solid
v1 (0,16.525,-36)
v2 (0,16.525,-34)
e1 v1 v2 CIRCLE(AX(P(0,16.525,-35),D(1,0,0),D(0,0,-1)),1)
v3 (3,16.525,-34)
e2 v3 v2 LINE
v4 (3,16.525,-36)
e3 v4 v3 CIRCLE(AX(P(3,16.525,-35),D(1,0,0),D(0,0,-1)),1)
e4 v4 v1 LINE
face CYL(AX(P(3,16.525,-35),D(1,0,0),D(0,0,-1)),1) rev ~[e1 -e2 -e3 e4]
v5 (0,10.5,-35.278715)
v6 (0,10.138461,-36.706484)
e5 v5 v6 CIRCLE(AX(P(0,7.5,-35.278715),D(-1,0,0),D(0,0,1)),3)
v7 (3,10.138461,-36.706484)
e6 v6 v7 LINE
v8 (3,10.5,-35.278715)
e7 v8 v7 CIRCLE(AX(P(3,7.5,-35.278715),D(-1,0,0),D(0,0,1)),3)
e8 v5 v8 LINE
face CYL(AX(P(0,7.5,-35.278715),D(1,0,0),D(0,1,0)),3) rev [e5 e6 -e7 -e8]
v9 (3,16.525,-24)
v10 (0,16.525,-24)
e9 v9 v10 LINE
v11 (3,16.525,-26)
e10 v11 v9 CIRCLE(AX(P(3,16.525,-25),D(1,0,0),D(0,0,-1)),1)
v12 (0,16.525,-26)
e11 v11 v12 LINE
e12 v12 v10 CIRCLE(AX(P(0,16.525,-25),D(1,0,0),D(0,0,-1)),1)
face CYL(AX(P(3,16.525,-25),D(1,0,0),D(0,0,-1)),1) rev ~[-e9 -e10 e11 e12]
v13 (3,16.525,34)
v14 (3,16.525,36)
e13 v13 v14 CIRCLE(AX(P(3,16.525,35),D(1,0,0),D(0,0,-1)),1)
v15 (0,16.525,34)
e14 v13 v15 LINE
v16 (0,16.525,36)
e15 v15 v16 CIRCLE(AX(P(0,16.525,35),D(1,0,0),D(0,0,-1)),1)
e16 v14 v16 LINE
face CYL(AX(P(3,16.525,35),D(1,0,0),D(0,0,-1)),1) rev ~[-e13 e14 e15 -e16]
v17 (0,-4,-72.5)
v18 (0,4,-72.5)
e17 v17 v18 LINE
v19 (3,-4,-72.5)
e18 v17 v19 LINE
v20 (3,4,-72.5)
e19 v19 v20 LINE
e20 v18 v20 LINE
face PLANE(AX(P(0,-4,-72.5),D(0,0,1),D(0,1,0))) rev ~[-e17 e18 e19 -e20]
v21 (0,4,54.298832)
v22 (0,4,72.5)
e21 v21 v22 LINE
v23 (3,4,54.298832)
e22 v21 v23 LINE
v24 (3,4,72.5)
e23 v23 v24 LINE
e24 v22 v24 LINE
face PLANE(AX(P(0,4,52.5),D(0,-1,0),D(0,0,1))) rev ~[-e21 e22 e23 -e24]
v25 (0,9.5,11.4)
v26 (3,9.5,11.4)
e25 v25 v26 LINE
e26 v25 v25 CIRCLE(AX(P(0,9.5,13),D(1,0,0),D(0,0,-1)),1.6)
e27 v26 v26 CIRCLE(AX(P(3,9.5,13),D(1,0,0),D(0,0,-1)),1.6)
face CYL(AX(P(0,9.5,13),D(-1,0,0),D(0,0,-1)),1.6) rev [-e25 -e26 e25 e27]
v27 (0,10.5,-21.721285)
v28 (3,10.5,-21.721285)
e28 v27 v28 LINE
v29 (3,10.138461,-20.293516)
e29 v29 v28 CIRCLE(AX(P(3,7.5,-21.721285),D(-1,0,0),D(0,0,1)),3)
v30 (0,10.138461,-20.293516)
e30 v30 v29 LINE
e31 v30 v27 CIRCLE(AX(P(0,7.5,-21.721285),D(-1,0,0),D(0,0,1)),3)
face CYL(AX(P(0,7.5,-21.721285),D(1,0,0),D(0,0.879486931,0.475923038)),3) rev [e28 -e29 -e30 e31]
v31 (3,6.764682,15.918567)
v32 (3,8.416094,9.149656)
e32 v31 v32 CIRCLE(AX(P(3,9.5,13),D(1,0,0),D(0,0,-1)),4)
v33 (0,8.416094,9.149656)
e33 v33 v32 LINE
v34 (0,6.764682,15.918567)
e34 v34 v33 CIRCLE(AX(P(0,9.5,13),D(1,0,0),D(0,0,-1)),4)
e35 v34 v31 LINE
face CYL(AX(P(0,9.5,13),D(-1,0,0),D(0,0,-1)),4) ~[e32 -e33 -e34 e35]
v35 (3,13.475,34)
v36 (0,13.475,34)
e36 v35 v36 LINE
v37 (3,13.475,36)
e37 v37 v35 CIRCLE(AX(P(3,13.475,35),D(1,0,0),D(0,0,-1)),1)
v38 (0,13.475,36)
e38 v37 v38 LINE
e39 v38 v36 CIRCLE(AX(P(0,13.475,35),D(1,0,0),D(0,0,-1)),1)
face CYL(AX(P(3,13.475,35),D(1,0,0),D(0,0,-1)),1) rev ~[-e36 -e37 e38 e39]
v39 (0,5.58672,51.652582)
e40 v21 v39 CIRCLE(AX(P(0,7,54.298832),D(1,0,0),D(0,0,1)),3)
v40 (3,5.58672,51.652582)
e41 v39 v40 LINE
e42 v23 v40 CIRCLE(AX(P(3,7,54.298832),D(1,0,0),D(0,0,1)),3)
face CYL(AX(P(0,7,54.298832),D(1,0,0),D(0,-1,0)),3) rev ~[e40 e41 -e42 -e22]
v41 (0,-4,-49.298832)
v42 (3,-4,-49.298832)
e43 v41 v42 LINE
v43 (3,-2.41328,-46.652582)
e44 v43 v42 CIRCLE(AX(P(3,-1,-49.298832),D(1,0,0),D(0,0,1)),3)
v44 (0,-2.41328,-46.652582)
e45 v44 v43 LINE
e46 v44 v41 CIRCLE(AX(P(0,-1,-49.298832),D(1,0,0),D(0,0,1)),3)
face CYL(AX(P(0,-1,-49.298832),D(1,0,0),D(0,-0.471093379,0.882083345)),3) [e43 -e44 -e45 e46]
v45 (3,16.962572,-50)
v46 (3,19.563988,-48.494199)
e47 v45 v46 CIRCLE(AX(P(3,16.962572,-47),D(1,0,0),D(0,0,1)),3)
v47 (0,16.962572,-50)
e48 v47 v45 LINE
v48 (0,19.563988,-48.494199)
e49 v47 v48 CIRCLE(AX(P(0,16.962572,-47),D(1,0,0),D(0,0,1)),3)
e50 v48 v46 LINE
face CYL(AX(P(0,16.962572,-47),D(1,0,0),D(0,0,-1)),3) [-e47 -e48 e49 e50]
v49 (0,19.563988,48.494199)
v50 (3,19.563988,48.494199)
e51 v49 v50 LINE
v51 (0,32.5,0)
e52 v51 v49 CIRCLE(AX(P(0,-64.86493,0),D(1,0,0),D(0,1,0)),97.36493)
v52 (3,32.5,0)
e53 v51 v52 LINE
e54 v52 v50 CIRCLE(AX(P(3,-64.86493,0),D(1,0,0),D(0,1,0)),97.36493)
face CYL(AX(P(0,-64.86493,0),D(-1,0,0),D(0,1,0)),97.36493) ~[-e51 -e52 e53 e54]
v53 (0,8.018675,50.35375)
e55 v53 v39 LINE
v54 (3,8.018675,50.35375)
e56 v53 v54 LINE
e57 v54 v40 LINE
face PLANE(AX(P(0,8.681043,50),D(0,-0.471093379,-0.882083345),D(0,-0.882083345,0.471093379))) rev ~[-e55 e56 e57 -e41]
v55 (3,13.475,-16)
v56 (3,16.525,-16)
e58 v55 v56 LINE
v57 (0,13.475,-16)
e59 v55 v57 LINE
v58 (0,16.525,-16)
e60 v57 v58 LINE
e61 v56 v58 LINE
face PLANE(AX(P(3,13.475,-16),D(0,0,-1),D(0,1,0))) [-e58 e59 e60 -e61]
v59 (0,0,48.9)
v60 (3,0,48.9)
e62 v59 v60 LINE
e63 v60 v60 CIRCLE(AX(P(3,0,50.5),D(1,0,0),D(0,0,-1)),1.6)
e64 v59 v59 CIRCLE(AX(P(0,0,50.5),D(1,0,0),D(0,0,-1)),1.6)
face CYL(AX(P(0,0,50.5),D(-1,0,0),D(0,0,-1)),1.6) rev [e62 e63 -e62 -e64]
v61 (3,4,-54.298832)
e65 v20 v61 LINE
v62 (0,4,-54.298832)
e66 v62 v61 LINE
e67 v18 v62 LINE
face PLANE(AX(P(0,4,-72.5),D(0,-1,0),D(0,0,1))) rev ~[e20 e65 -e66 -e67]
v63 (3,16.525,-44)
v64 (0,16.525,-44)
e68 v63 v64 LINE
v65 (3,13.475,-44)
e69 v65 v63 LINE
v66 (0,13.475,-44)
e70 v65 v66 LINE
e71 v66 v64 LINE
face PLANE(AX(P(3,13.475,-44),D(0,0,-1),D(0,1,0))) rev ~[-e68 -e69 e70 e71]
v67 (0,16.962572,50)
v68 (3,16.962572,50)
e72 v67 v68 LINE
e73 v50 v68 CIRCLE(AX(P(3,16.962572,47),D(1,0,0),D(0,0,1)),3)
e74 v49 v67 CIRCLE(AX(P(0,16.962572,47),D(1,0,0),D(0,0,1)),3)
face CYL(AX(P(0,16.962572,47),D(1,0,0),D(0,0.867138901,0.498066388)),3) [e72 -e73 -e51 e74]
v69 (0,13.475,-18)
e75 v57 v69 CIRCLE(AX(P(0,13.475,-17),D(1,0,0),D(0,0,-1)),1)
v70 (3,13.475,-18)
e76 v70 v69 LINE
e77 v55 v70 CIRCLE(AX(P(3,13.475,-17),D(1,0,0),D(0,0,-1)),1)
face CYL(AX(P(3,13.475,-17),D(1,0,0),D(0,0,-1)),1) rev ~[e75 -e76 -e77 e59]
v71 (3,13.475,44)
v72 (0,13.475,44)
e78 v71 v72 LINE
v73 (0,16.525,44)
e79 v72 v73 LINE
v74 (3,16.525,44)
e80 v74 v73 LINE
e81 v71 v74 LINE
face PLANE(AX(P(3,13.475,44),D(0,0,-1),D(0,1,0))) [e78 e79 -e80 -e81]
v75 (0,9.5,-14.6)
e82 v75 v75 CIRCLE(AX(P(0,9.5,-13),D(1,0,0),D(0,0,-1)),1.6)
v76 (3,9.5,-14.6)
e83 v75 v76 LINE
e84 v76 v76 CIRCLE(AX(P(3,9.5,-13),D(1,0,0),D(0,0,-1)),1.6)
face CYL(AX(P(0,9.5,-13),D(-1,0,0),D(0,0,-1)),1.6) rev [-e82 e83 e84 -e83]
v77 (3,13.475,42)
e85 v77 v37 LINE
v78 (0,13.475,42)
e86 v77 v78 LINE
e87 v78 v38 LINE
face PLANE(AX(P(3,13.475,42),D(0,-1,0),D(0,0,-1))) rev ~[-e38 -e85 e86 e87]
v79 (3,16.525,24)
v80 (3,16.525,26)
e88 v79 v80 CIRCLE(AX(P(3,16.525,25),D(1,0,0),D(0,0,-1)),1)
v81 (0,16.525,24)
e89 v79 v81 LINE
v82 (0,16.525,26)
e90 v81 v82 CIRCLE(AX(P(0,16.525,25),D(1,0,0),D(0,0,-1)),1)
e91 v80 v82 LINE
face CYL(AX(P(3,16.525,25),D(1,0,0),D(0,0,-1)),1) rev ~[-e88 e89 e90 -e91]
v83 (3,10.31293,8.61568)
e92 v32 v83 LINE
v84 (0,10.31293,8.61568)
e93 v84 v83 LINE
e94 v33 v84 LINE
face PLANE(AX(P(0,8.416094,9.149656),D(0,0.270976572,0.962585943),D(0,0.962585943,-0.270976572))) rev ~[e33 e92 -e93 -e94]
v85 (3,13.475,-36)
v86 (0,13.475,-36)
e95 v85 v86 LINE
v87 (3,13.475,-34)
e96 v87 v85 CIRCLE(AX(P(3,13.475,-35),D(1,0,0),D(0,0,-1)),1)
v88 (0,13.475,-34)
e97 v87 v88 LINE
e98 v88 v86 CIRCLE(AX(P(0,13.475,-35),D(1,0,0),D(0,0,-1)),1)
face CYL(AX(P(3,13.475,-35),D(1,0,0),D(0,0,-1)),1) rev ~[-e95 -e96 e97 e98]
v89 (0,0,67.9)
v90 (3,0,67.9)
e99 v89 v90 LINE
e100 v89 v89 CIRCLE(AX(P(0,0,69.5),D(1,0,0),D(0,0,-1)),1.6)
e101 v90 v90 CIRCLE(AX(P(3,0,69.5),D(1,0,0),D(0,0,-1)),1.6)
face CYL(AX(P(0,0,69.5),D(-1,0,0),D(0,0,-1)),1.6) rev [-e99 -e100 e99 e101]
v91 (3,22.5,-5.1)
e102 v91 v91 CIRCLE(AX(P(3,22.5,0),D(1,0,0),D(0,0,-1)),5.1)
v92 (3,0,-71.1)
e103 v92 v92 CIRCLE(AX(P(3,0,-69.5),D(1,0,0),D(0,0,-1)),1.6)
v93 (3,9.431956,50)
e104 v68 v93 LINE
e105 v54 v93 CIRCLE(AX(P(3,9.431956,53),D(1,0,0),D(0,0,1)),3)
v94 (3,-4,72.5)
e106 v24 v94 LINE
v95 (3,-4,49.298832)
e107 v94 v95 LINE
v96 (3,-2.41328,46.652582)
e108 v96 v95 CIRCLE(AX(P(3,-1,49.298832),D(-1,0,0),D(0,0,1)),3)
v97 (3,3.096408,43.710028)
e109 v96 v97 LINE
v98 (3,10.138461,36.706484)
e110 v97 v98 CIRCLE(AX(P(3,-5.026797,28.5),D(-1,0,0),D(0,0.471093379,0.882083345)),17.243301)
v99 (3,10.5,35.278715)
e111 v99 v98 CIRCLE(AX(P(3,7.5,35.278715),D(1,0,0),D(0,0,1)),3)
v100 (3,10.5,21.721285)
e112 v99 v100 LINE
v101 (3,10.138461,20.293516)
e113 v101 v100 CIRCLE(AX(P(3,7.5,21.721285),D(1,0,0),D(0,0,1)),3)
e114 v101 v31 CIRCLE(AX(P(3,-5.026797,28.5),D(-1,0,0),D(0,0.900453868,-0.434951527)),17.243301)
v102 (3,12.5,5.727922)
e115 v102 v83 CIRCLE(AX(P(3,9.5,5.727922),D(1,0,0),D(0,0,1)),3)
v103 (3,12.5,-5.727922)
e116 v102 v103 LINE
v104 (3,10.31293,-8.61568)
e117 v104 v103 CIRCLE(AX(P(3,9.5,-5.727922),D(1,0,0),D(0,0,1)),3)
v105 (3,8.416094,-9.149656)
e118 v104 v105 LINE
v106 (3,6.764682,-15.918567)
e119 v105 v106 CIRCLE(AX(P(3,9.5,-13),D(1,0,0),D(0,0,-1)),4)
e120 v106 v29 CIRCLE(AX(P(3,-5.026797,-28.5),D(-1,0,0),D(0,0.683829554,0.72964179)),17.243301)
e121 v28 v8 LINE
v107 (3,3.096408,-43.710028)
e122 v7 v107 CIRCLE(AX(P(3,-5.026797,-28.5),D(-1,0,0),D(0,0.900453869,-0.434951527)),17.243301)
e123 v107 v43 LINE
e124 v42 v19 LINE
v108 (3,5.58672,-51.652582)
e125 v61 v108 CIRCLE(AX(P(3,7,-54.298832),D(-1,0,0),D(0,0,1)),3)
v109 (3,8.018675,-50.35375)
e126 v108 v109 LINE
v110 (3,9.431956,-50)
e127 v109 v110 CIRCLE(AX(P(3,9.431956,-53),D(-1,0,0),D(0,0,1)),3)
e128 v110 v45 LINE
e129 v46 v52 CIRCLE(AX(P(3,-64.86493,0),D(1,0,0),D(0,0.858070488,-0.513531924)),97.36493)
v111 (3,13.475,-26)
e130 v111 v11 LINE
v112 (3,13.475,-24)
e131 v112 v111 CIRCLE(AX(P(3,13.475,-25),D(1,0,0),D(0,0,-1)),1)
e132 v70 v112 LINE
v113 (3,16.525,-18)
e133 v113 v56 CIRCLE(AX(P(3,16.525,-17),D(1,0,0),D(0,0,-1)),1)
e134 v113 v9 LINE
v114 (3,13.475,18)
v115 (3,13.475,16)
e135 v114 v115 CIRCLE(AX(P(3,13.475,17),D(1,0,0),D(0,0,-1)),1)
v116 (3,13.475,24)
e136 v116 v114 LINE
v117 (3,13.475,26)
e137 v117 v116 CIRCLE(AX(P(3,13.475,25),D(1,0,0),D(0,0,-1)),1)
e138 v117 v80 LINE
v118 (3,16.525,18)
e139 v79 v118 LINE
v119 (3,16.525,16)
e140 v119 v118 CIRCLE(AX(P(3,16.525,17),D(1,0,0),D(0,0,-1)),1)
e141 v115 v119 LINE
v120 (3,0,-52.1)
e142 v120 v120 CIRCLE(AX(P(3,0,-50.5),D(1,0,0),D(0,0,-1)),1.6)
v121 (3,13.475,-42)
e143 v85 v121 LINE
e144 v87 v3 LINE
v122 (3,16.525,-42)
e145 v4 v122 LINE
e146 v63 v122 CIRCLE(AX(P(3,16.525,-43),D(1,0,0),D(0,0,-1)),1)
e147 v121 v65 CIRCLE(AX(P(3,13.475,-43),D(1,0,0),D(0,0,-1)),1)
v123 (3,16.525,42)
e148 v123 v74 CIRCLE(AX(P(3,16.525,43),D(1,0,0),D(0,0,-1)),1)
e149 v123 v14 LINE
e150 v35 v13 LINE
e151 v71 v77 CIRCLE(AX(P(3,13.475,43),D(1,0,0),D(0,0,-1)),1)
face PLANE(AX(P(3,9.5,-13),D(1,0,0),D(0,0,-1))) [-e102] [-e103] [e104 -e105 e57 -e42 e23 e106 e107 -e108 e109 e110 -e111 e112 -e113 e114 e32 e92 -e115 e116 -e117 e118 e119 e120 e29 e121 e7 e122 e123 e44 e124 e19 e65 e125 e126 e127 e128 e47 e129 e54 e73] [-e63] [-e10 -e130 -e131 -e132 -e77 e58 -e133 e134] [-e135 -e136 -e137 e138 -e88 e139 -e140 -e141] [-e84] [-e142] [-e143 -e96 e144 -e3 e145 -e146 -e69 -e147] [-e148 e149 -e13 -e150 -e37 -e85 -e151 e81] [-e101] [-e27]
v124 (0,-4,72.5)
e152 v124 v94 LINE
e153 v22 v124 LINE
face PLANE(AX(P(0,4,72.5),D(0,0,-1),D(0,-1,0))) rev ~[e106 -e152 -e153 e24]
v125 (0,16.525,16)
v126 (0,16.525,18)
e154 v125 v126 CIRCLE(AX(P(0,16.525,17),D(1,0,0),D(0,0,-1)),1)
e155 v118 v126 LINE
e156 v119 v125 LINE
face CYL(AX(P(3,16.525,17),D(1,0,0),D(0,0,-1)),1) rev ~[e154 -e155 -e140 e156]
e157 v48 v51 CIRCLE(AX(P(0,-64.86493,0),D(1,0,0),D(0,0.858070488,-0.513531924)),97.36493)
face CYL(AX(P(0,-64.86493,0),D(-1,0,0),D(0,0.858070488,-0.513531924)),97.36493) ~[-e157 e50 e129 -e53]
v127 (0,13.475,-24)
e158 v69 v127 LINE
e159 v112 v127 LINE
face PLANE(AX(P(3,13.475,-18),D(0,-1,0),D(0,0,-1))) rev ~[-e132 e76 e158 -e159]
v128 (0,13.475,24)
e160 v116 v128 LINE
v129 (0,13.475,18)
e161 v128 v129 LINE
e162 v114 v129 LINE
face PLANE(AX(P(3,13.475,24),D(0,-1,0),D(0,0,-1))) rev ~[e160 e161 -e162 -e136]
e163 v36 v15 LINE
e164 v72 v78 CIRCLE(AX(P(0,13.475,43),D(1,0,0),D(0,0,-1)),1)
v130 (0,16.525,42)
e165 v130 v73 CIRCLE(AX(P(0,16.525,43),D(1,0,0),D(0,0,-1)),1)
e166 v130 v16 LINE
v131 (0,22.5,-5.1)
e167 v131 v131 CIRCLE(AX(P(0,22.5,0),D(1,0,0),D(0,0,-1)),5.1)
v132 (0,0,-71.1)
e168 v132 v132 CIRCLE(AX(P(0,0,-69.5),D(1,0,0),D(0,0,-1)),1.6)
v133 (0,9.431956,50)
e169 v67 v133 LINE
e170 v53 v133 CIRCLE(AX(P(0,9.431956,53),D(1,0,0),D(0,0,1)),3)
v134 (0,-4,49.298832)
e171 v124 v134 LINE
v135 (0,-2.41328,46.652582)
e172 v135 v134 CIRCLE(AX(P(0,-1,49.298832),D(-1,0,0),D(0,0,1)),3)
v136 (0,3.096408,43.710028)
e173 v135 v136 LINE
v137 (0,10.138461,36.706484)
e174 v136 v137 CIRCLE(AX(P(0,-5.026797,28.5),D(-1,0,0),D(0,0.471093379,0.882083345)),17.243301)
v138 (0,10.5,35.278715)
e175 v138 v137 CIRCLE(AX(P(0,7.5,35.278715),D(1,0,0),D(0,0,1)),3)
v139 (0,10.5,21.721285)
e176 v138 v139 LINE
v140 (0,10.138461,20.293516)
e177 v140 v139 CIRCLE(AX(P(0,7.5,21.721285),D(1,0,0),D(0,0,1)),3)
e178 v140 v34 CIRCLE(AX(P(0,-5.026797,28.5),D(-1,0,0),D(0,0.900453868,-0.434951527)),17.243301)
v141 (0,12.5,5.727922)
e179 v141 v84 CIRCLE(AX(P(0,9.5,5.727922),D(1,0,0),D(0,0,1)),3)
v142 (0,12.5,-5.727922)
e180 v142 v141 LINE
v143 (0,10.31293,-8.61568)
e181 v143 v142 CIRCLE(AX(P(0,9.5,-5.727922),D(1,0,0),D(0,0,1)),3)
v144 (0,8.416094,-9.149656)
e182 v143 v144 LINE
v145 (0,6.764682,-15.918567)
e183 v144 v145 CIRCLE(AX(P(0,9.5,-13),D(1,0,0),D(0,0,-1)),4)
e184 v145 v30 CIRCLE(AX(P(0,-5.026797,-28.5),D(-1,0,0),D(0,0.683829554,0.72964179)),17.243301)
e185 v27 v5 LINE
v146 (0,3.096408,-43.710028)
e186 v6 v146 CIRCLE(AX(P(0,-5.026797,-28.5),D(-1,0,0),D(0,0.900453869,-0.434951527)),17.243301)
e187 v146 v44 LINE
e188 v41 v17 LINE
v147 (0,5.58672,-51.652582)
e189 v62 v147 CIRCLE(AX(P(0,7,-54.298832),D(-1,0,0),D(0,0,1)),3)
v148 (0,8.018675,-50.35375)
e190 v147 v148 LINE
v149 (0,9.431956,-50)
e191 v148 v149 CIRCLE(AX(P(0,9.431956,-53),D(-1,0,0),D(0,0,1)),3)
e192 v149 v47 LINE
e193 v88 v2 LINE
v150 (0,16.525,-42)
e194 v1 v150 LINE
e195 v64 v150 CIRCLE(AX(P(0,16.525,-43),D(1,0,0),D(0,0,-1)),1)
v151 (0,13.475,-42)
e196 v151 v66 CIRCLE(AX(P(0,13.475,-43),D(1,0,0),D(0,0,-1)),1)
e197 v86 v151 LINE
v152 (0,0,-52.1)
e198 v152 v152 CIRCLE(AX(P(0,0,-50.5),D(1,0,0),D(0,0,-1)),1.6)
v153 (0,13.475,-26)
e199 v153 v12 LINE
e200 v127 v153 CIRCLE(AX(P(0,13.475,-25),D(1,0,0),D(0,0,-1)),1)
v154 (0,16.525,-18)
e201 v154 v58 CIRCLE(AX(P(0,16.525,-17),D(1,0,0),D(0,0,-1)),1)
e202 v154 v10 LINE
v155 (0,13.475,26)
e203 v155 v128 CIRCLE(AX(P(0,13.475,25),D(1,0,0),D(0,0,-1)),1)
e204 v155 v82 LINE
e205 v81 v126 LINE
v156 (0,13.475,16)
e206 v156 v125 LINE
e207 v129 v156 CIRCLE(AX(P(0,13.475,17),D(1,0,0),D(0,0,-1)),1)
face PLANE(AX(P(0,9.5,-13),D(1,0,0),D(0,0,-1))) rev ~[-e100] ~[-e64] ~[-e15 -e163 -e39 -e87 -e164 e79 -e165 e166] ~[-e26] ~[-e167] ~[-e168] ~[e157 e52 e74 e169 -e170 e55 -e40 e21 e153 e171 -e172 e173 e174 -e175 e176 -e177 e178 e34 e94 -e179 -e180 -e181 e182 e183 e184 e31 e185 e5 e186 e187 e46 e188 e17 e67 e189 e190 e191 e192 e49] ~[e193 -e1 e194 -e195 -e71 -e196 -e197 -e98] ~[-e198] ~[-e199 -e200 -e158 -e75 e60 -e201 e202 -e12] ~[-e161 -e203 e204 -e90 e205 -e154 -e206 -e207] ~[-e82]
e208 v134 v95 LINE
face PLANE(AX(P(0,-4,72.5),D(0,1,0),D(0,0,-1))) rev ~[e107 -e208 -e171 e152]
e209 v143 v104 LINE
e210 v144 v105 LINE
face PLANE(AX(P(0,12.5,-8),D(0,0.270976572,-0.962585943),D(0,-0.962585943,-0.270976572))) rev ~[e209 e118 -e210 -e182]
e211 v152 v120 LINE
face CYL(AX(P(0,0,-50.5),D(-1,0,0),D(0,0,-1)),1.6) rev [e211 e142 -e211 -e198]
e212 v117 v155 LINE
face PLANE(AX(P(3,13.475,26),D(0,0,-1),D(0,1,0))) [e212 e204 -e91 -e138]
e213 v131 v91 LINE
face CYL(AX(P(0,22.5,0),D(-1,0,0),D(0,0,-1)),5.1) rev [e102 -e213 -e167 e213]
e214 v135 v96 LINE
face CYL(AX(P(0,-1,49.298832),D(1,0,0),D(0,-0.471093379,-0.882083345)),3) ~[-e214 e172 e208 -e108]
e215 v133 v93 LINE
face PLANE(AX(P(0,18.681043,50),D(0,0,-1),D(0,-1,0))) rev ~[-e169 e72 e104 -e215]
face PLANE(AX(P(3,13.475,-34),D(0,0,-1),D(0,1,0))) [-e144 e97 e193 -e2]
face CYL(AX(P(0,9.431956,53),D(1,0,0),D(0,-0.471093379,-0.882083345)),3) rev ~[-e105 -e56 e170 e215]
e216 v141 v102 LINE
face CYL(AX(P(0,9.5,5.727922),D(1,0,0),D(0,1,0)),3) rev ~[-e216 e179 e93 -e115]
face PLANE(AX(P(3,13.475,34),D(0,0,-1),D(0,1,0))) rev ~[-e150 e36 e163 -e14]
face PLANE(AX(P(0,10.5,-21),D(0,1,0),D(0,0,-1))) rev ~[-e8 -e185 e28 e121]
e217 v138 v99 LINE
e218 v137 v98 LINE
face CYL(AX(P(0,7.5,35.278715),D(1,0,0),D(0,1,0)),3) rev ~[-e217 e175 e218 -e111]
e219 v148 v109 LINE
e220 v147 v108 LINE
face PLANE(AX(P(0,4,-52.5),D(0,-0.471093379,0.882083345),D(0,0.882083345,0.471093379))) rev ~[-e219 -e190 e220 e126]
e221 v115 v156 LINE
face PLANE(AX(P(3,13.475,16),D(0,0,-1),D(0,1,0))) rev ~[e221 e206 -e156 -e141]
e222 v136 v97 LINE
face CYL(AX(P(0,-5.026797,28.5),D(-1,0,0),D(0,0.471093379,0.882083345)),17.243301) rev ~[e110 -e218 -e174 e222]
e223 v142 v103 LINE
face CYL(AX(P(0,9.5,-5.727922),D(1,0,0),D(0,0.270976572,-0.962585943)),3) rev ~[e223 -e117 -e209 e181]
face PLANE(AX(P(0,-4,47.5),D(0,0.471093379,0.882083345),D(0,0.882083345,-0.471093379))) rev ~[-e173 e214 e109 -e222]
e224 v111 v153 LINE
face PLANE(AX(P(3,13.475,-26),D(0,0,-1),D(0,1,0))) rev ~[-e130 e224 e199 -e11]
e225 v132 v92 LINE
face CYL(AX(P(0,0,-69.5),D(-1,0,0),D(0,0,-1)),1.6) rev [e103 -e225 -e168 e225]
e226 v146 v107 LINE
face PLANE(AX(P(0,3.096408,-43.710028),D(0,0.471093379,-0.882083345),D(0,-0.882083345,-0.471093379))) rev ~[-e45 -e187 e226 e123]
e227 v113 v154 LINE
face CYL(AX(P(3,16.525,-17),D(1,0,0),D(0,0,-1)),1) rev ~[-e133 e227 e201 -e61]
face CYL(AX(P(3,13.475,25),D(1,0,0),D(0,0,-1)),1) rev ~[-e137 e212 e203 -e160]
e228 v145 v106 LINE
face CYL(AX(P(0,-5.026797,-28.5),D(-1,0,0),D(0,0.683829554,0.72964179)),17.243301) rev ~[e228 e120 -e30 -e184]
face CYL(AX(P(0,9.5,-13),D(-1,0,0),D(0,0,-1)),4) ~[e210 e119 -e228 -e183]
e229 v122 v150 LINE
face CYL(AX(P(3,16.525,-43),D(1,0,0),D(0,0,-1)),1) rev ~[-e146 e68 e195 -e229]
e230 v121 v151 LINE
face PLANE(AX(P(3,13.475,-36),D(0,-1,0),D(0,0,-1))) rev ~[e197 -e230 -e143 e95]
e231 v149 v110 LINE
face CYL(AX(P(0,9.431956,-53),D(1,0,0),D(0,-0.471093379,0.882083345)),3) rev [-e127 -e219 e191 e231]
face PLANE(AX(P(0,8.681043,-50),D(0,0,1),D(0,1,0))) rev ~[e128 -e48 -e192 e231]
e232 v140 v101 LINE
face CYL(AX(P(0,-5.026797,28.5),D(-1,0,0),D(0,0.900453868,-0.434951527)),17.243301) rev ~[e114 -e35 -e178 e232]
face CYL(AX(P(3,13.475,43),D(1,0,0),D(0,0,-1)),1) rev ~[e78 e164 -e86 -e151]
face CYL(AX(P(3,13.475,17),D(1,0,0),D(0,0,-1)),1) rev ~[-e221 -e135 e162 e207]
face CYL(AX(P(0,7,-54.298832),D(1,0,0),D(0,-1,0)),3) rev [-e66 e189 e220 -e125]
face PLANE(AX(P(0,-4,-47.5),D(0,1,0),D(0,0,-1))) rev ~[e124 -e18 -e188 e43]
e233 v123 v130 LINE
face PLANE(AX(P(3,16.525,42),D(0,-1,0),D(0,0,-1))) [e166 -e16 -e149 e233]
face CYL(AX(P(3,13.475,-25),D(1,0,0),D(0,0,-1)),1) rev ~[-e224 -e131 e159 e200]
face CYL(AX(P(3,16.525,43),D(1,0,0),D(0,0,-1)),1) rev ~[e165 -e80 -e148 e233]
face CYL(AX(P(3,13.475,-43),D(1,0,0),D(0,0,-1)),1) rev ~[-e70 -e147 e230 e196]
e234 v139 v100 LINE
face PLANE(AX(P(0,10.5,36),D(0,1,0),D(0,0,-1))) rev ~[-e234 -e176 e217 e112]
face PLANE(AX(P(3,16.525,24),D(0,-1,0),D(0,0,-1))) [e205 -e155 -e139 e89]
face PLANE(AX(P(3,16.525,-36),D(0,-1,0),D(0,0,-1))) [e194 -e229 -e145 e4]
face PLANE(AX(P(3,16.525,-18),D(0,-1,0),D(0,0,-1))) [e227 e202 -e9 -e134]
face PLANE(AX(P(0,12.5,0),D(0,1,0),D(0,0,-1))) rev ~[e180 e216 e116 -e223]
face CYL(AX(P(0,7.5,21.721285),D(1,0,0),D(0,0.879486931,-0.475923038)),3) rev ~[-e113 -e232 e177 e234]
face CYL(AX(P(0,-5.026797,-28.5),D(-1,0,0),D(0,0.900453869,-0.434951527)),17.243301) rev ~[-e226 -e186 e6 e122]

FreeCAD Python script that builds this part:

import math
import FreeCAD as App
import Part
import Sketcher
from FreeCAD import Vector


def edges_at(feature, points):
    """Names of the edges that pass closest to the given points."""
    edges = feature.Shape.Edges
    near = lambda p: min(range(len(edges)), key=lambda i: edges[i].distToShape(Part.Vertex(*p))[0])
    return sorted({f"Edge{near(p) + 1}" for p in points})

doc = App.newDocument("Part")
params = doc.addObject("Spreadsheet::Sheet", "Params")
for row, (alias, value) in enumerate([
    ("sketch1_radius", "4 mm"),
    ("sketch1_diameter", "3.2 mm"),
    ("sketch1_diameter2", "10.2 mm"),
    ("sketch1_width", "8 mm"),
    ("sketch1_width2", "10 mm"),
    ("pad1_length", "3 mm"),
    ("sketch2_radius", "1 mm"),
    ("sketch2_height", "6 mm"),
    ("sketch2_width", "3.05 mm"),
    ("fillet_radius", "3 mm"),
], start=1):
    params.set(f"A{row}", alias)
    params.set(f"B{row}", "=" + value)
    params.setAlias(f"B{row}", alias)

body = doc.addObject("PartDesign::Body", "Body")

sketch1 = body.newObject("Sketcher::SketchObject", "Sketch")
sketch1.AttachmentSupport = (doc.getObject("YZ_Plane"), [""])
sketch1.MapMode = "FlatFace"
sketch1.addGeometry(Part.LineSegment(Vector(-4, 72.5, 0), Vector(-4, 47.5, 0)), False)
sketch1.addGeometry(Part.LineSegment(Vector(-4, 47.5, 0), Vector(3.096408, 43.710028, 0)), False)
sketch1.addGeometry(Part.ArcOfCircle(Part.Circle(Vector(-5.026797, 28.5, 0), Vector(0, 0, 1), 17.243301), math.radians(25.782209), math.radians(61.894706)), False)
sketch1.addGeometry(Part.LineSegment(Vector(10.5, 36, 0), Vector(10.5, 21, 0)), False)
sketch1.addGeometry(Part.ArcOfCircle(Part.Circle(Vector(-5.026797, 28.5, 0), Vector(0, 0, 1), 17.243301), math.radians(-46.856372), math.radians(-25.782209)), False)
sketch1.addGeometry(Part.ArcOfCircle(Part.Circle(Vector(9.5, 13, 0), Vector(0, 0, 1), 4), math.radians(133.143628), math.radians(254.277613)), False)
sketch1.addGeometry(Part.LineSegment(Vector(8.416094, 9.149656, 0), Vector(12.5, 8, 0)), False)
sketch1.addGeometry(Part.LineSegment(Vector(12.5, 8, 0), Vector(12.5, -8, 0)), False)
sketch1.addGeometry(Part.LineSegment(Vector(12.5, -8, 0), Vector(8.416094, -9.149656, 0)), False)
sketch1.addGeometry(Part.ArcOfCircle(Part.Circle(Vector(9.5, -13, 0), Vector(0, 0, 1), 4), math.radians(105.722387), math.radians(226.856372)), False)
sketch1.addGeometry(Part.ArcOfCircle(Part.Circle(Vector(-5.026797, -28.5, 0), Vector(0, 0, 1), 17.243301), math.radians(25.782209), math.radians(46.856372)), False)
sketch1.addGeometry(Part.LineSegment(Vector(10.5, -21, 0), Vector(10.5, -36, 0)), False)
sketch1.addGeometry(Part.ArcOfCircle(Part.Circle(Vector(-5.026797, -28.5, 0), Vector(0, 0, 1), 17.243301), math.radians(-61.894706), math.radians(-25.782209)), False)
sketch1.addGeometry(Part.LineSegment(Vector(3.096408, -43.710028, 0), Vector(-4, -47.5, 0)), False)
sketch1.addGeometry(Part.LineSegment(Vector(-4, -47.5, 0), Vector(-4, -72.5, 0)), False)
sketch1.addGeometry(Part.LineSegment(Vector(-4, -72.5, 0), Vector(4, -72.5, 0)), False)
sketch1.addGeometry(Part.LineSegment(Vector(4, -72.5, 0), Vector(4, -52.5, 0)), False)
sketch1.addGeometry(Part.LineSegment(Vector(4, -52.5, 0), Vector(8.681043, -50, 0)), False)
sketch1.addGeometry(Part.LineSegment(Vector(8.681043, -50, 0), Vector(18.681043, -50, 0)), False)
sketch1.addGeometry(Part.ArcOfCircle(Part.Circle(Vector(-64.86493, 0, 0), Vector(0, 0, 1), 97.36493), math.radians(-30.899377), math.radians(0)), False)
sketch1.addGeometry(Part.ArcOfCircle(Part.Circle(Vector(-64.86493, 0, 0), Vector(0, 0, 1), 97.36493), math.radians(0), math.radians(30.899377)), False)
sketch1.addGeometry(Part.LineSegment(Vector(18.681043, 50, 0), Vector(8.681043, 50, 0)), False)
sketch1.addGeometry(Part.LineSegment(Vector(8.681043, 50, 0), Vector(4, 52.5, 0)), False)
sketch1.addGeometry(Part.LineSegment(Vector(4, 52.5, 0), Vector(4, 72.5, 0)), False)
sketch1.addGeometry(Part.LineSegment(Vector(4, 72.5, 0), Vector(-4, 72.5, 0)), False)
sketch1.addGeometry(Part.Circle(Vector(0, 69.5, 0), Vector(0, 0, 1), 1.6), False)
sketch1.addGeometry(Part.Circle(Vector(0, 50.5, 0), Vector(0, 0, 1), 1.6), False)
sketch1.addGeometry(Part.Circle(Vector(9.5, 13, 0), Vector(0, 0, 1), 1.6), False)
sketch1.addGeometry(Part.Circle(Vector(22.5, 0, 0), Vector(0, 0, 1), 5.1), False)
sketch1.addGeometry(Part.Circle(Vector(0, -69.5, 0), Vector(0, 0, 1), 1.6), False)
sketch1.addGeometry(Part.Circle(Vector(0, -50.5, 0), Vector(0, 0, 1), 1.6), False)
sketch1.addGeometry(Part.Circle(Vector(9.5, -13, 0), Vector(0, 0, 1), 1.6), False)
sketch1.addConstraint(Sketcher.Constraint("Coincident", 0, 2, 1, 1))
sketch1.addConstraint(Sketcher.Constraint("Tangent", 1, 2, 2, 2))
sketch1.addConstraint(Sketcher.Constraint("Coincident", 2, 1, 3, 1))
sketch1.addConstraint(Sketcher.Constraint("Coincident", 3, 2, 4, 2))
sketch1.addConstraint(Sketcher.Constraint("Tangent", 4, 1, 5, 1))
sketch1.addConstraint(Sketcher.Constraint("Tangent", 5, 2, 6, 1))
sketch1.addConstraint(Sketcher.Constraint("Coincident", 6, 2, 7, 1))
sketch1.addConstraint(Sketcher.Constraint("Coincident", 7, 2, 8, 1))
sketch1.addConstraint(Sketcher.Constraint("Tangent", 8, 2, 9, 1))
sketch1.addConstraint(Sketcher.Constraint("Tangent", 9, 2, 10, 2))
sketch1.addConstraint(Sketcher.Constraint("Coincident", 10, 1, 11, 1))
sketch1.addConstraint(Sketcher.Constraint("Coincident", 11, 2, 12, 2))
sketch1.addConstraint(Sketcher.Constraint("Tangent", 12, 1, 13, 1))
sketch1.addConstraint(Sketcher.Constraint("Coincident", 13, 2, 14, 1))
sketch1.addConstraint(Sketcher.Constraint("Coincident", 14, 2, 15, 1))
sketch1.addConstraint(Sketcher.Constraint("Coincident", 15, 2, 16, 1))
sketch1.addConstraint(Sketcher.Constraint("Coincident", 16, 2, 17, 1))
sketch1.addConstraint(Sketcher.Constraint("Coincident", 17, 2, 18, 1))
sketch1.addConstraint(Sketcher.Constraint("Coincident", 18, 2, 19, 1))
sketch1.addConstraint(Sketcher.Constraint("Tangent", 19, 2, 20, 1))
sketch1.addConstraint(Sketcher.Constraint("Coincident", 20, 2, 21, 1))
sketch1.addConstraint(Sketcher.Constraint("Coincident", 21, 2, 22, 1))
sketch1.addConstraint(Sketcher.Constraint("Coincident", 22, 2, 23, 1))
sketch1.addConstraint(Sketcher.Constraint("Coincident", 23, 2, 24, 1))
sketch1.addConstraint(Sketcher.Constraint("Coincident", 24, 2, 0, 1))
sketch1.addConstraint(Sketcher.Constraint("Vertical", 0))
sketch1.addConstraint(Sketcher.Constraint("Vertical", 3))
sketch1.addConstraint(Sketcher.Constraint("Vertical", 7))
sketch1.addConstraint(Sketcher.Constraint("Vertical", 11))
sketch1.addConstraint(Sketcher.Constraint("Vertical", 14))
sketch1.addConstraint(Sketcher.Constraint("Horizontal", 15))
sketch1.addConstraint(Sketcher.Constraint("Vertical", 16))
sketch1.addConstraint(Sketcher.Constraint("Horizontal", 18))
sketch1.addConstraint(Sketcher.Constraint("Horizontal", 21))
sketch1.addConstraint(Sketcher.Constraint("Vertical", 23))
sketch1.addConstraint(Sketcher.Constraint("Horizontal", 24))
sketch1.addConstraint(Sketcher.Constraint("Coincident", 4, 3, 2, 3))
sketch1.addConstraint(Sketcher.Constraint("Coincident", 12, 3, 10, 3))
sketch1.addConstraint(Sketcher.Constraint("Coincident", 27, 3, 5, 3))
sketch1.addConstraint(Sketcher.Constraint("Coincident", 31, 3, 9, 3))
sketch1.addConstraint(Sketcher.Constraint("Equal", 2, 4))
sketch1.addConstraint(Sketcher.Constraint("Equal", 5, 9))
sketch1.addConstraint(Sketcher.Constraint("Equal", 4, 10))
sketch1.addConstraint(Sketcher.Constraint("Equal", 10, 12))
sketch1.addConstraint(Sketcher.Constraint("Equal", 19, 20))
sketch1.addConstraint(Sketcher.Constraint("Equal", 25, 26))
sketch1.addConstraint(Sketcher.Constraint("Equal", 26, 27))
sketch1.addConstraint(Sketcher.Constraint("Equal", 27, 29))
sketch1.addConstraint(Sketcher.Constraint("Equal", 29, 30))
sketch1.addConstraint(Sketcher.Constraint("Equal", 30, 31))
sketch1.addConstraint(Sketcher.Constraint("Symmetric", 25, 3, 29, 3, -1, 1))
sketch1.addConstraint(Sketcher.Constraint("Symmetric", 26, 3, 30, 3, -1, 1))
sketch1.addConstraint(Sketcher.Constraint("Symmetric", 14, 2, 23, 2, -1, 1))
sketch1.addConstraint(Sketcher.Constraint("Symmetric", 5, 3, 9, 3, -1))
sketch1.addConstraint(Sketcher.Constraint("Symmetric", 3, 2, 10, 1, -1))
sketch1.addConstraint(Sketcher.Constraint("Symmetric", 0, 2, 13, 2, -1))
sketch1.addConstraint(Sketcher.Constraint("Symmetric", 18, 2, 20, 2, -1))
sketch1.addConstraint(Sketcher.Constraint("Symmetric", 16, 2, 22, 2, -1))
sketch1.addConstraint(Sketcher.Constraint("PointOnObject", 25, 3, -2))
sketch1.addConstraint(Sketcher.Constraint("PointOnObject", 26, 3, -2))
sketch1.addConstraint(Sketcher.Constraint("PointOnObject", 28, 3, -1))
sketch1.addConstraint(Sketcher.Constraint("PointOnObject", 19, 2, -1))
sketch1.addConstraint(Sketcher.Constraint("Parallel", 13, 17))
sketch1.addConstraint(Sketcher.Constraint("Parallel", 1, 22))
sketch1.addConstraint(Sketcher.Constraint("Vertical", 5, 2, 8, 2))
sketch1.addConstraint(Sketcher.Constraint("Radius", 5, 4.0))
sketch1.addConstraint(Sketcher.Constraint("Diameter", 25, 3.2))
sketch1.addConstraint(Sketcher.Constraint("Diameter", 28, 10.2))
sketch1.addConstraint(Sketcher.Constraint("DistanceX", 15, 1, 15, 2, 8.0))
sketch1.addConstraint(Sketcher.Constraint("DistanceX", 18, 1, 18, 2, 10.0))
sketch1.addConstraint(Sketcher.Constraint("DistanceY", 0, 2, 0, 1, 25.0))
sketch1.addConstraint(Sketcher.Constraint("DistanceY", 3, 2, 3, 1, 15.0))
sketch1.addConstraint(Sketcher.Constraint("DistanceY", 7, 2, 7, 1, 16.0))
sketch1.addConstraint(Sketcher.Constraint("DistanceY", 16, 1, 16, 2, 20.0))
sketch1.addConstraint(Sketcher.Constraint("DistanceY", -1, 1, 5, 3, 13.0))
sketch1.addConstraint(Sketcher.Constraint("DistanceY", -1, 1, 2, 1, 36.0))
sketch1.addConstraint(Sketcher.Constraint("DistanceY", 17, 2, -1, 1, 50.0))
sketch1.addConstraint(Sketcher.Constraint("DistanceY", 4, 3, 25, 3, 41.0))
sketch1.addConstraint(Sketcher.Constraint("DistanceY", 26, 3, 25, 3, 19.0))
sketch1.addConstraint(Sketcher.Constraint("DistanceX", 5, 3, 28, 3, 13.0))
sketch1.addConstraint(Sketcher.Constraint("DistanceY", 0, 2, 26, 3, 3.0))
sketch1.addConstraint(Sketcher.Constraint("DistanceX", 5, 3, 3, 2, 1.0))
sketch1.addConstraint(Sketcher.Constraint("DistanceX", 5, 3, 6, 2, 3.0))
sketch1.addConstraint(Sketcher.Constraint("DistanceX", 28, 3, 19, 2, 10.0))
sketch1.addConstraint(Sketcher.Constraint("DistanceX", -1, 1, 5, 3, 9.5))
sketch1.setExpression("Constraints[65]", "Params.sketch1_radius")
sketch1.setExpression("Constraints[66]", "Params.sketch1_diameter")
sketch1.setExpression("Constraints[67]", "Params.sketch1_diameter2")
sketch1.setExpression("Constraints[68]", "Params.sketch1_width")
sketch1.setExpression("Constraints[69]", "Params.sketch1_width2")
pad1 = body.newObject("PartDesign::Pad", "Pad")
pad1.Profile = sketch1
pad1.setExpression("Length", "Params.pad1_length")

sketch2 = body.newObject("Sketcher::SketchObject", "Sketch001")
sketch2.AttachmentSupport = (doc.getObject("YZ_Plane"), [""])
sketch2.MapMode = "FlatFace"
sketch2.AttachmentOffset = App.Placement(Vector(0, 0, 3), App.Rotation())
sketch2.addGeometry(Part.ArcOfCircle(Part.Circle(Vector(16.525, 43, 0), Vector(0, 0, 1), 1), math.radians(-90), math.radians(90)), False)
sketch2.addGeometry(Part.LineSegment(Vector(16.525, 44, 0), Vector(13.475, 44, 0)), False)
sketch2.addGeometry(Part.ArcOfCircle(Part.Circle(Vector(13.475, 43, 0), Vector(0, 0, 1), 1), math.radians(90), math.radians(270)), False)
sketch2.addGeometry(Part.LineSegment(Vector(13.475, 42, 0), Vector(13.475, 36, 0)), False)
sketch2.addGeometry(Part.ArcOfCircle(Part.Circle(Vector(13.475, 35, 0), Vector(0, 0, 1), 1), math.radians(90), math.radians(270)), False)
sketch2.addGeometry(Part.LineSegment(Vector(13.475, 34, 0), Vector(16.525, 34, 0)), False)
sketch2.addGeometry(Part.ArcOfCircle(Part.Circle(Vector(16.525, 35, 0), Vector(0, 0, 1), 1), math.radians(-90), math.radians(90)), False)
sketch2.addGeometry(Part.LineSegment(Vector(16.525, 36, 0), Vector(16.525, 42, 0)), False)
sketch2.addGeometry(Part.ArcOfCircle(Part.Circle(Vector(16.525, 25, 0), Vector(0, 0, 1), 1), math.radians(-90), math.radians(90)), False)
sketch2.addGeometry(Part.LineSegment(Vector(16.525, 26, 0), Vector(13.475, 26, 0)), False)
sketch2.addGeometry(Part.ArcOfCircle(Part.Circle(Vector(13.475, 25, 0), Vector(0, 0, 1), 1), math.radians(90), math.radians(270)), False)
sketch2.addGeometry(Part.LineSegment(Vector(13.475, 24, 0), Vector(13.475, 18, 0)), False)
sketch2.addGeometry(Part.ArcOfCircle(Part.Circle(Vector(13.475, 17, 0), Vector(0, 0, 1), 1), math.radians(90), math.radians(270)), False)
sketch2.addGeometry(Part.LineSegment(Vector(13.475, 16, 0), Vector(16.525, 16, 0)), False)
sketch2.addGeometry(Part.ArcOfCircle(Part.Circle(Vector(16.525, 17, 0), Vector(0, 0, 1), 1), math.radians(-90), math.radians(90)), False)
sketch2.addGeometry(Part.LineSegment(Vector(16.525, 18, 0), Vector(16.525, 24, 0)), False)
sketch2.addGeometry(Part.ArcOfCircle(Part.Circle(Vector(13.475, -25, 0), Vector(0, 0, 1), 1), math.radians(90), math.radians(270)), False)
sketch2.addGeometry(Part.LineSegment(Vector(13.475, -26, 0), Vector(16.525, -26, 0)), False)
sketch2.addGeometry(Part.ArcOfCircle(Part.Circle(Vector(16.525, -25, 0), Vector(0, 0, 1), 1), math.radians(-90), math.radians(90)), False)
sketch2.addGeometry(Part.LineSegment(Vector(16.525, -24, 0), Vector(16.525, -18, 0)), False)
sketch2.addGeometry(Part.ArcOfCircle(Part.Circle(Vector(16.525, -17, 0), Vector(0, 0, 1), 1), math.radians(-90), math.radians(90)), False)
sketch2.addGeometry(Part.LineSegment(Vector(16.525, -16, 0), Vector(13.475, -16, 0)), False)
sketch2.addGeometry(Part.ArcOfCircle(Part.Circle(Vector(13.475, -17, 0), Vector(0, 0, 1), 1), math.radians(90), math.radians(270)), False)
sketch2.addGeometry(Part.LineSegment(Vector(13.475, -18, 0), Vector(13.475, -24, 0)), False)
sketch2.addGeometry(Part.ArcOfCircle(Part.Circle(Vector(13.475, -35, 0), Vector(0, 0, 1), 1), math.radians(90), math.radians(270)), False)
sketch2.addGeometry(Part.LineSegment(Vector(13.475, -36, 0), Vector(13.475, -42, 0)), False)
sketch2.addGeometry(Part.ArcOfCircle(Part.Circle(Vector(13.475, -43, 0), Vector(0, 0, 1), 1), math.radians(90), math.radians(270)), False)
sketch2.addGeometry(Part.LineSegment(Vector(13.475, -44, 0), Vector(16.525, -44, 0)), False)
sketch2.addGeometry(Part.ArcOfCircle(Part.Circle(Vector(16.525, -43, 0), Vector(0, 0, 1), 1), math.radians(-90), math.radians(90)), False)
sketch2.addGeometry(Part.LineSegment(Vector(16.525, -42, 0), Vector(16.525, -36, 0)), False)
sketch2.addGeometry(Part.ArcOfCircle(Part.Circle(Vector(16.525, -35, 0), Vector(0, 0, 1), 1), math.radians(-90), math.radians(90)), False)
sketch2.addGeometry(Part.LineSegment(Vector(16.525, -34, 0), Vector(13.475, -34, 0)), False)
sketch2.addConstraint(Sketcher.Constraint("Tangent", 0, 2, 1, 1))
sketch2.addConstraint(Sketcher.Constraint("Tangent", 1, 2, 2, 1))
sketch2.addConstraint(Sketcher.Constraint("Coincident", 2, 2, 3, 1))
sketch2.addConstraint(Sketcher.Constraint("Coincident", 3, 2, 4, 1))
sketch2.addConstraint(Sketcher.Constraint("Tangent", 4, 2, 5, 1))
sketch2.addConstraint(Sketcher.Constraint("Tangent", 5, 2, 6, 1))
sketch2.addConstraint(Sketcher.Constraint("Coincident", 6, 2, 7, 1))
sketch2.addConstraint(Sketcher.Constraint("Coincident", 7, 2, 0, 1))
sketch2.addConstraint(Sketcher.Constraint("Tangent", 8, 2, 9, 1))
sketch2.addConstraint(Sketcher.Constraint("Tangent", 9, 2, 10, 1))
sketch2.addConstraint(Sketcher.Constraint("Coincident", 10, 2, 11, 1))
sketch2.addConstraint(Sketcher.Constraint("Coincident", 11, 2, 12, 1))
sketch2.addConstraint(Sketcher.Constraint("Tangent", 12, 2, 13, 1))
sketch2.addConstraint(Sketcher.Constraint("Tangent", 13, 2, 14, 1))
sketch2.addConstraint(Sketcher.Constraint("Coincident", 14, 2, 15, 1))
sketch2.addConstraint(Sketcher.Constraint("Coincident", 15, 2, 8, 1))
sketch2.addConstraint(Sketcher.Constraint("Tangent", 16, 2, 17, 1))
sketch2.addConstraint(Sketcher.Constraint("Tangent", 17, 2, 18, 1))
sketch2.addConstraint(Sketcher.Constraint("Coincident", 18, 2, 19, 1))
sketch2.addConstraint(Sketcher.Constraint("Coincident", 19, 2, 20, 1))
sketch2.addConstraint(Sketcher.Constraint("Tangent", 20, 2, 21, 1))
sketch2.addConstraint(Sketcher.Constraint("Tangent", 21, 2, 22, 1))
sketch2.addConstraint(Sketcher.Constraint("Coincident", 22, 2, 23, 1))
sketch2.addConstraint(Sketcher.Constraint("Coincident", 23, 2, 16, 1))
sketch2.addConstraint(Sketcher.Constraint("Coincident", 24, 2, 25, 1))
sketch2.addConstraint(Sketcher.Constraint("Coincident", 25, 2, 26, 1))
sketch2.addConstraint(Sketcher.Constraint("Tangent", 26, 2, 27, 1))
sketch2.addConstraint(Sketcher.Constraint("Tangent", 27, 2, 28, 1))
sketch2.addConstraint(Sketcher.Constraint("Coincident", 28, 2, 29, 1))
sketch2.addConstraint(Sketcher.Constraint("Coincident", 29, 2, 30, 1))
sketch2.addConstraint(Sketcher.Constraint("Tangent", 30, 2, 31, 1))
sketch2.addConstraint(Sketcher.Constraint("Tangent", 31, 2, 24, 1))
sketch2.addConstraint(Sketcher.Constraint("Horizontal", 1))
sketch2.addConstraint(Sketcher.Constraint("Vertical", 3))
sketch2.addConstraint(Sketcher.Constraint("Horizontal", 5))
sketch2.addConstraint(Sketcher.Constraint("Vertical", 7))
sketch2.addConstraint(Sketcher.Constraint("Horizontal", 9))
sketch2.addConstraint(Sketcher.Constraint("Vertical", 11))
sketch2.addConstraint(Sketcher.Constraint("Horizontal", 13))
sketch2.addConstraint(Sketcher.Constraint("Vertical", 15))
sketch2.addConstraint(Sketcher.Constraint("Horizontal", 17))
sketch2.addConstraint(Sketcher.Constraint("Vertical", 19))
sketch2.addConstraint(Sketcher.Constraint("Horizontal", 21))
sketch2.addConstraint(Sketcher.Constraint("Vertical", 23))
sketch2.addConstraint(Sketcher.Constraint("Vertical", 25))
sketch2.addConstraint(Sketcher.Constraint("Horizontal", 27))
sketch2.addConstraint(Sketcher.Constraint("Vertical", 29))
sketch2.addConstraint(Sketcher.Constraint("Horizontal", 31))
sketch2.addConstraint(Sketcher.Constraint("Equal", 0, 2))
sketch2.addConstraint(Sketcher.Constraint("Equal", 2, 4))
sketch2.addConstraint(Sketcher.Constraint("Equal", 4, 6))
sketch2.addConstraint(Sketcher.Constraint("Equal", 6, 8))
sketch2.addConstraint(Sketcher.Constraint("Equal", 8, 10))
sketch2.addConstraint(Sketcher.Constraint("Equal", 10, 12))
sketch2.addConstraint(Sketcher.Constraint("Equal", 12, 14))
sketch2.addConstraint(Sketcher.Constraint("Equal", 14, 16))
sketch2.addConstraint(Sketcher.Constraint("Equal", 16, 18))
sketch2.addConstraint(Sketcher.Constraint("Equal", 18, 20))
sketch2.addConstraint(Sketcher.Constraint("Equal", 20, 22))
sketch2.addConstraint(Sketcher.Constraint("Equal", 22, 24))
sketch2.addConstraint(Sketcher.Constraint("Equal", 24, 26))
sketch2.addConstraint(Sketcher.Constraint("Equal", 26, 28))
sketch2.addConstraint(Sketcher.Constraint("Equal", 28, 30))
sketch2.addConstraint(Sketcher.Constraint("Symmetric", 10, 3, 16, 3, -1))
sketch2.addConstraint(Sketcher.Constraint("Symmetric", 14, 3, 20, 3, -1))
sketch2.addConstraint(Sketcher.Constraint("Symmetric", 4, 3, 24, 3, -1))
sketch2.addConstraint(Sketcher.Constraint("Symmetric", 2, 3, 26, 3, -1))
sketch2.addConstraint(Sketcher.Constraint("Vertical", 2, 3, 4, 3))
sketch2.addConstraint(Sketcher.Constraint("Vertical", 0, 3, 6, 3))
sketch2.addConstraint(Sketcher.Constraint("Vertical", 6, 3, 8, 3))
sketch2.addConstraint(Sketcher.Constraint("Vertical", 4, 3, 10, 3))
sketch2.addConstraint(Sketcher.Constraint("Vertical", 10, 3, 12, 3))
sketch2.addConstraint(Sketcher.Constraint("Vertical", 8, 3, 14, 3))
sketch2.addConstraint(Sketcher.Constraint("Vertical", 14, 3, 18, 3))
sketch2.addConstraint(Sketcher.Constraint("Vertical", 16, 3, 22, 3))
sketch2.addConstraint(Sketcher.Constraint("Vertical", 20, 3, 28, 3))
sketch2.addConstraint(Sketcher.Constraint("Vertical", 28, 3, 30, 3))
sketch2.addConstraint(Sketcher.Constraint("Vertical", 1, 2, 2, 2))
sketch2.addConstraint(Sketcher.Constraint("Vertical", 5, 2, 6, 2))
sketch2.addConstraint(Sketcher.Constraint("Vertical", 9, 2, 10, 2))
sketch2.addConstraint(Sketcher.Constraint("Vertical", 13, 2, 14, 2))
sketch2.addConstraint(Sketcher.Constraint("Vertical", 17, 2, 18, 2))
sketch2.addConstraint(Sketcher.Constraint("Vertical", 21, 2, 22, 2))
sketch2.addConstraint(Sketcher.Constraint("Vertical", 23, 2, 24, 2))
sketch2.addConstraint(Sketcher.Constraint("Vertical", 27, 2, 28, 2))
sketch2.addConstraint(Sketcher.Constraint("Equal", 7, 11))
sketch2.addConstraint(Sketcher.Constraint("Radius", 0, 1.0))
sketch2.addConstraint(Sketcher.Constraint("DistanceY", 3, 2, 3, 1, 6.0))
sketch2.addConstraint(Sketcher.Constraint("DistanceY", -1, 1, 0, 3, 43.0))
sketch2.addConstraint(Sketcher.Constraint("DistanceY", -1, 1, 8, 3, 25.0))
sketch2.addConstraint(Sketcher.Constraint("DistanceX", 1, 2, 1, 1, 3.05))
sketch2.addConstraint(Sketcher.Constraint("DistanceX", -1, 1, 0, 3, 16.525))
sketch2.setExpression("Constraints[86]", "Params.sketch2_radius")
sketch2.setExpression("Constraints[87]", "Params.sketch2_height")
sketch2.setExpression("Constraints[90]", "Params.sketch2_width")
pocket1 = body.newObject("PartDesign::Pocket", "Pocket")
pocket1.Profile = sketch2
pocket1.Type = "ThroughAll"
doc.recompute()

fillet = body.newObject("PartDesign::Fillet", "Fillet")
fillet.Base = (pocket1, edges_at(pocket1, [
    (1.5, 10.5, 36),
    (1.5, -4, 47.5),
    (1.5, 4, 52.5),
    (1.5, 8.681, 50),
    (1.5, 18.681, 50),
    (1.5, 18.681, -50),
    (1.5, 8.681, -50),
    (1.5, 4, -52.5),
    (1.5, -4, -47.5),
    (1.5, 10.5, -36),
    (1.5, 10.5, -21),
    (1.5, 12.5, -8),
    (1.5, 12.5, 8),
    (1.5, 10.5, 21),
]))
fillet.setExpression("Radius", "Params.fillet_radius")

doc.recompute()
